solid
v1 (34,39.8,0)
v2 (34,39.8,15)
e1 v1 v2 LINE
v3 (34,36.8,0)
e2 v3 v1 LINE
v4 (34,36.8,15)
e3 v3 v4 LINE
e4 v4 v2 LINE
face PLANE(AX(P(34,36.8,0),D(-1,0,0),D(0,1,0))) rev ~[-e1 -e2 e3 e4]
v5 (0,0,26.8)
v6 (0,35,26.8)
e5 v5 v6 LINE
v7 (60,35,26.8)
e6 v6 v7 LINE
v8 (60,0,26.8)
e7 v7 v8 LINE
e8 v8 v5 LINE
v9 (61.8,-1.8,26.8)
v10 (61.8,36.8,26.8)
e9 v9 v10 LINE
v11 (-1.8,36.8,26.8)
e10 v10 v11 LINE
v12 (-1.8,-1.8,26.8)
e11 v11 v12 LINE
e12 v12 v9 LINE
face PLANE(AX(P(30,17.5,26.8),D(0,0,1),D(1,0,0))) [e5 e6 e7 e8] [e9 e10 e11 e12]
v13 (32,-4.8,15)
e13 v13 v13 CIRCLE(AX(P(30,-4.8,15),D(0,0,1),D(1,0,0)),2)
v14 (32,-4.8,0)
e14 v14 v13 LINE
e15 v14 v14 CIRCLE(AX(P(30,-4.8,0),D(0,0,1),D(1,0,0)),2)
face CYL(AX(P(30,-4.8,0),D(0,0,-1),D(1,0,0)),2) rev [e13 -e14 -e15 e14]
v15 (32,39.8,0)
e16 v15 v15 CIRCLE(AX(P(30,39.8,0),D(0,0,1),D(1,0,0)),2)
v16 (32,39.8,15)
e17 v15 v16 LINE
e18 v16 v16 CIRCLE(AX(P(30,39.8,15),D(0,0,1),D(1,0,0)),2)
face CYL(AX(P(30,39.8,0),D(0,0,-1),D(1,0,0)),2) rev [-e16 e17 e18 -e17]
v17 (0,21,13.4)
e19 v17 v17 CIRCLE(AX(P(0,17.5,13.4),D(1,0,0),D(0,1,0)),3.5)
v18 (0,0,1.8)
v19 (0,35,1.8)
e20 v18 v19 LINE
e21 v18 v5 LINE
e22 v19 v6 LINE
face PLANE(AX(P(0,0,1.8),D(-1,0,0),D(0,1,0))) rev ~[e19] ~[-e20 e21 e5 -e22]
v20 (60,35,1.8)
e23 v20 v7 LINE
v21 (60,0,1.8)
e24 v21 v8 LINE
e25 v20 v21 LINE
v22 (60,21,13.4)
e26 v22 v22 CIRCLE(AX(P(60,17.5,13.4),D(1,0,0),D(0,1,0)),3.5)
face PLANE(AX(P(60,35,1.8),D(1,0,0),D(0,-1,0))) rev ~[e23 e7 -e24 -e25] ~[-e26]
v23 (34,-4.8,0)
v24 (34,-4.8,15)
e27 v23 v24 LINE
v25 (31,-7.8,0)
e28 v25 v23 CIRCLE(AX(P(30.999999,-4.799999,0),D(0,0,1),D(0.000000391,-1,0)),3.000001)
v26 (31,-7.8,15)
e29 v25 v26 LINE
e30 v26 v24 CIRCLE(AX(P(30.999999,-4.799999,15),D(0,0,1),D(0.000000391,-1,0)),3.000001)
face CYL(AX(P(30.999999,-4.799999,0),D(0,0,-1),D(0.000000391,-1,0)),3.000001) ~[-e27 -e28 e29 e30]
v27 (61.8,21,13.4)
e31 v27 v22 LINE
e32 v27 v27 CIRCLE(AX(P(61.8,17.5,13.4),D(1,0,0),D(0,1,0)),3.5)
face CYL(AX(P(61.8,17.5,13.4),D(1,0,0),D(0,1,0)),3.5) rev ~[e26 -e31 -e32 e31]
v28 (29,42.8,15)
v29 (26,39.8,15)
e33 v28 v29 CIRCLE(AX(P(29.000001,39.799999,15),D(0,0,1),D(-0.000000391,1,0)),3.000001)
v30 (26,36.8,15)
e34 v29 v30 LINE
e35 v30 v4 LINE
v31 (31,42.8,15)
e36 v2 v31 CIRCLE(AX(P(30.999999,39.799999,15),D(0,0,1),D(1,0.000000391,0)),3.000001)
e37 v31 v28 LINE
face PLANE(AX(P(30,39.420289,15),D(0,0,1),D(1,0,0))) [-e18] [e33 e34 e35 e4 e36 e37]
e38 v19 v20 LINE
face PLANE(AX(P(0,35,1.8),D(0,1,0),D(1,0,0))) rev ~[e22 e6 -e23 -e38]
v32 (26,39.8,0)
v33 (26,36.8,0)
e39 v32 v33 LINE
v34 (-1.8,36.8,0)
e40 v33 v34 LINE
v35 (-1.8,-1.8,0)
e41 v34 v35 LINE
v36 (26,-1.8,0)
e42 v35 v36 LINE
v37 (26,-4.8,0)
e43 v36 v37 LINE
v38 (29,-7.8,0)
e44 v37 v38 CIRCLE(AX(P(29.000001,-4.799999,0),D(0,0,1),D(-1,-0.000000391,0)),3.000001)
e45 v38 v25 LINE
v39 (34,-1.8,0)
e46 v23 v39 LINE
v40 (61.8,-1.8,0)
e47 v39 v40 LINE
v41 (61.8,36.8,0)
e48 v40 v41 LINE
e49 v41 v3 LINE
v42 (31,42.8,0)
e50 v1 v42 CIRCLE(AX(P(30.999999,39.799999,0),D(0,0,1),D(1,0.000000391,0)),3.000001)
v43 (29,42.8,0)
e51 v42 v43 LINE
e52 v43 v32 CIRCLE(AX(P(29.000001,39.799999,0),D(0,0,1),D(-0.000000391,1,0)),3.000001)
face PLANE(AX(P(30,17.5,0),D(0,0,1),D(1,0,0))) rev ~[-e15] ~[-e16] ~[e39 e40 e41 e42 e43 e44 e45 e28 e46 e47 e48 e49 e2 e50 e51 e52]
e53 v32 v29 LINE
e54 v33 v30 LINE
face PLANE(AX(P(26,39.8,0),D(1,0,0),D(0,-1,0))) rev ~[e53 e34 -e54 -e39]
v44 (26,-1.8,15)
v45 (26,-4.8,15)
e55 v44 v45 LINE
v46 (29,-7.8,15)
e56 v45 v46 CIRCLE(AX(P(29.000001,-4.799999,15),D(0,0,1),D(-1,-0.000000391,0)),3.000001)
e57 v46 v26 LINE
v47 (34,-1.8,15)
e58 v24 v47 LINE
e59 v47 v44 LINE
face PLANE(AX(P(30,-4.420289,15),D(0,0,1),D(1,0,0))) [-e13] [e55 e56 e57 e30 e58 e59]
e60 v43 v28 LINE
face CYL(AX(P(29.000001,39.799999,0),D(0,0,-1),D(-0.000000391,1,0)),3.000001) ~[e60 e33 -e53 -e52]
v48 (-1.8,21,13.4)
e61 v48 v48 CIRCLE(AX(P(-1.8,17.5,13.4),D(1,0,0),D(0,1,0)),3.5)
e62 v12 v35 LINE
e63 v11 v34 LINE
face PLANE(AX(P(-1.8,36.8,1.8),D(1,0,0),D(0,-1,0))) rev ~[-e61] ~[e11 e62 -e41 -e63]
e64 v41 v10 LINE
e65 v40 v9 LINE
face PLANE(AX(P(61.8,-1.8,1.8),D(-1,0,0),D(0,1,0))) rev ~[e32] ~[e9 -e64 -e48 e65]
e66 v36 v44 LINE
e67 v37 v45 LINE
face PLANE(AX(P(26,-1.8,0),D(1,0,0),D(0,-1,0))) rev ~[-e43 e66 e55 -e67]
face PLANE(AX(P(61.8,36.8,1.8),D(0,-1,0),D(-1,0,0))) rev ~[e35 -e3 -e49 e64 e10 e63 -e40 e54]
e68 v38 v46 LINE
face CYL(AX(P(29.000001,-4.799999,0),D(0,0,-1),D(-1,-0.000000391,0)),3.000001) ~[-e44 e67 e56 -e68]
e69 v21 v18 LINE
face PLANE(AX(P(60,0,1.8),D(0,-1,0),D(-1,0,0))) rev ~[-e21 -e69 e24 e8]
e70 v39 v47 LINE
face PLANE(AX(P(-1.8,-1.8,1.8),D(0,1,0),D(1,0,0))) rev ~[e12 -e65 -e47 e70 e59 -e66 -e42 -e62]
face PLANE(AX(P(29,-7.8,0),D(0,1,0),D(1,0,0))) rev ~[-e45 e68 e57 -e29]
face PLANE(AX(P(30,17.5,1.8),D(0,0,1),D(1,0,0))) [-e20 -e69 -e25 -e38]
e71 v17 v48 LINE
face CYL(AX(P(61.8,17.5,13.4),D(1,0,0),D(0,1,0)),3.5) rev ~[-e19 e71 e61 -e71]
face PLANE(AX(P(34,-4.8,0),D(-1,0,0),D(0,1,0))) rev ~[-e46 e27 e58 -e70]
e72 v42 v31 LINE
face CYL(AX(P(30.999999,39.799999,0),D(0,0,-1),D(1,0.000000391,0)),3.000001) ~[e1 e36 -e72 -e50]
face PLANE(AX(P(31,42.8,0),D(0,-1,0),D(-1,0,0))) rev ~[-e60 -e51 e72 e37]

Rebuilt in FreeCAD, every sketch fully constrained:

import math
import FreeCAD as App
import Part
import Sketcher
from FreeCAD import Vector


def add_polygon(sketch, points):
    """Adds a closed chain of lines whose ends are joined by coincident constraints."""
    first, n = sketch.GeometryCount, len(points)
    for a, b in zip(points, points[1:] + points[:1]):
        sketch.addGeometry(Part.LineSegment(App.Vector(*a, 0), App.Vector(*b, 0)), False)
    for i in range(n):
        sketch.addConstraint(Sketcher.Constraint("Coincident", first + i, 2, first + (i + 1) % n, 1))

doc = App.newDocument("Part")
body = doc.addObject("PartDesign::Body", "Body")

# Sketch on XY plane
sketch1 = body.newObject("Sketcher::SketchObject", "Sketch")
sketch1.AttachmentSupport = (doc.getObject("XY_Plane"), [""])
sketch1.MapMode = "FlatFace"
add_polygon(sketch1, [(-1.8, 36.8), (-1.8, -1.8), (61.8, -1.8), (61.8, 36.8)])  # lines 0-3
sketch1.addConstraint([
    Sketcher.Constraint("Vertical", 0),
    Sketcher.Constraint("Horizontal", 1),
    Sketcher.Constraint("Vertical", 2),
    Sketcher.Constraint("Horizontal", 3),
    Sketcher.Constraint("DistanceX", 1, 1, 1, 2, 63.6),
    Sketcher.Constraint("DistanceY", 0, 2, 0, 1, 38.6),
    Sketcher.Constraint("DistanceX", 0, 2, -1, 1, 1.8),
    Sketcher.Constraint("DistanceY", 0, 2, -1, 1, 1.8),
])
pad1 = body.newObject("PartDesign::Pad", "Pad")
pad1.Profile = sketch1
pad1.Length = 1.8

# Sketch on XY plane
sketch2 = body.newObject("Sketcher::SketchObject", "Sketch001")
sketch2.AttachmentSupport = (doc.getObject("XY_Plane"), [""])
sketch2.MapMode = "FlatFace"
sketch2.AttachmentOffset = App.Placement(Vector(0, 0, 1.8), App.Rotation())
add_polygon(sketch2, [(-1.8, -1.8), (61.8, -1.8), (61.8, 36.8), (-1.8, 36.8)])  # lines 0-3
add_polygon(sketch2, [(60, 0), (0, 0), (0, 35), (60, 35)])  # lines 4-7
sketch2.addConstraint([
    Sketcher.Constraint("Horizontal", 0),
    Sketcher.Constraint("Vertical", 1),
    Sketcher.Constraint("Horizontal", 2),
    Sketcher.Constraint("Vertical", 3),
    Sketcher.Constraint("Horizontal", 4),
    Sketcher.Constraint("Vertical", 5),
    Sketcher.Constraint("Horizontal", 6),
    Sketcher.Constraint("Vertical", 7),
    Sketcher.Constraint("Coincident", 4, 2, -1, 1),
    Sketcher.Constraint("DistanceX", 4, 2, 4, 1, 60.0),
    Sketcher.Constraint("DistanceY", 5, 1, 5, 2, 35.0),
    Sketcher.Constraint("DistanceX", 0, 1, 0, 2, 63.6),
    Sketcher.Constraint("DistanceY", 1, 1, 1, 2, 38.6),
    Sketcher.Constraint("DistanceX", -1, 1, 0, 2, 61.8),
    Sketcher.Constraint("DistanceY", 0, 2, -1, 1, 1.8),
])
pad2 = body.newObject("PartDesign::Pad", "Pad001")
pad2.Profile = sketch2
pad2.Length = 25

# Sketch on XY plane
sketch3 = body.newObject("Sketcher::SketchObject", "Sketch002")
sketch3.AttachmentSupport = (doc.getObject("XY_Plane"), [""])
sketch3.MapMode = "FlatFace"
sketch3.addGeometry([
    Part.LineSegment(Vector(34, -1.8, 0), Vector(26, -1.8, 0)),  # 0
    Part.LineSegment(Vector(26, -1.8, 0), Vector(26, -4.8, 0)),  # 1
    Part.ArcOfCircle(Part.Circle(Vector(29.000001, -4.799999, 0), Vector(0, 0, 1), 3.000001), math.radians(-179.999978), math.radians(-90.000022)),  # 2
    Part.LineSegment(Vector(29, -7.8, 0), Vector(31, -7.8, 0)),  # 3
    Part.ArcOfCircle(Part.Circle(Vector(30.999999, -4.799999, 0), Vector(0, 0, 1), 3.000001), math.radians(-89.999978), math.radians(-0.000022)),  # 4
    Part.LineSegment(Vector(34, -4.8, 0), Vector(34, -1.8, 0)),  # 5
    Part.Circle(Vector(30, -4.8, 0), Vector(0, 0, 1), 2),  # 6
    Part.LineSegment(Vector(26, 39.8, 0), Vector(26, 36.8, 0)),  # 7
    Part.LineSegment(Vector(26, 36.8, 0), Vector(34, 36.8, 0)),  # 8
    Part.LineSegment(Vector(34, 36.8, 0), Vector(34, 39.8, 0)),  # 9
    Part.ArcOfCircle(Part.Circle(Vector(30.999999, 39.799999, 0), Vector(0, 0, 1), 3.000001), math.radians(0.000022), math.radians(89.999978)),  # 10
    Part.LineSegment(Vector(31, 42.8, 0), Vector(29, 42.8, 0)),  # 11
    Part.ArcOfCircle(Part.Circle(Vector(29.000001, 39.799999, 0), Vector(0, 0, 1), 3.000001), math.radians(90.000022), math.radians(179.999978)),  # 12
    Part.Circle(Vector(30, 39.8, 0), Vector(0, 0, 1), 2),  # 13
], False)
sketch3.addConstraint([
    Sketcher.Constraint("Coincident", 0, 2, 1, 1),
    Sketcher.Constraint("Tangent", 1, 2, 2, 1),
    Sketcher.Constraint("Tangent", 2, 2, 3, 1),
    Sketcher.Constraint("Tangent", 3, 2, 4, 1),
    Sketcher.Constraint("Tangent", 4, 2, 5, 1),
    Sketcher.Constraint("Coincident", 5, 2, 0, 1),
    Sketcher.Constraint("Coincident", 7, 2, 8, 1),
    Sketcher.Constraint("Coincident", 8, 2, 9, 1),
    Sketcher.Constraint("Tangent", 9, 2, 10, 1),
    Sketcher.Constraint("Tangent", 10, 2, 11, 1),
    Sketcher.Constraint("Tangent", 11, 2, 12, 1),
    Sketcher.Constraint("Tangent", 12, 2, 7, 1),
    Sketcher.Constraint("Horizontal", 0),
    Sketcher.Constraint("Vertical", 1),
    Sketcher.Constraint("Horizontal", 3),
    Sketcher.Constraint("Vertical", 5),
    Sketcher.Constraint("Vertical", 7),
    Sketcher.Constraint("Horizontal", 8),
    Sketcher.Constraint("Vertical", 9),
    Sketcher.Constraint("Horizontal", 11),
    Sketcher.Constraint("Equal", 2, 4),
    Sketcher.Constraint("Equal", 4, 10),
    Sketcher.Constraint("Equal", 10, 12),
    Sketcher.Constraint("Equal", 6, 13),
    Sketcher.Constraint("Horizontal", 4, 3, 6, 3),
    Sketcher.Constraint("Horizontal", 12, 3, 13, 3),
    Sketcher.Constraint("Vertical", 4, 3, 10, 3),
    Sketcher.Constraint("Vertical", 2, 3, 12, 3),
    Sketcher.Constraint("Vertical", 6, 3, 13, 3),
    Sketcher.Constraint("Equal", 5, 7),
    Sketcher.Constraint("Diameter", 6, 4.0),
    Sketcher.Constraint("Radius", 2, 3.000001),
    Sketcher.Constraint("DistanceX", 0, 2, 0, 1, 8.0),
    Sketcher.Constraint("DistanceY", 1, 2, 1, 1, 3.0),
    Sketcher.Constraint("DistanceX", -1, 1, 2, 3, 29.000001),
    Sketcher.Constraint("DistanceX", -1, 1, 6, 3, 30.0),
    Sketcher.Constraint("DistanceY", 2, 3, -1, 1, 4.799999),
    Sketcher.Constraint("DistanceY", -1, 1, 10, 3, 39.799999),
])
pad3 = body.newObject("PartDesign::Pad", "Pad002")
pad3.Profile = sketch3
pad3.Length = 15

# Sketch on YZ plane
sketch4 = body.newObject("Sketcher::SketchObject", "Sketch003")
sketch4.AttachmentSupport = (doc.getObject("YZ_Plane"), [""])
sketch4.MapMode = "FlatFace"
sketch4.AttachmentOffset = App.Placement(Vector(0, 0, 61.8), App.Rotation())
sketch4.addGeometry(Part.Circle(Vector(17.5, 13.4, 0), Vector(0, 0, 1), 3.5), False)
sketch4.addConstraint([
    Sketcher.Constraint("Diameter", 0, 7.0),
    Sketcher.Constraint("DistanceX", -1, 1, 0, 3, 17.5),
    Sketcher.Constraint("DistanceY", -1, 1, 0, 3, 13.4),
])
pocket1 = body.newObject("PartDesign::Pocket", "Pocket")
pocket1.Profile = sketch4
pocket1.Type = "ThroughAll"

doc.recompute()
